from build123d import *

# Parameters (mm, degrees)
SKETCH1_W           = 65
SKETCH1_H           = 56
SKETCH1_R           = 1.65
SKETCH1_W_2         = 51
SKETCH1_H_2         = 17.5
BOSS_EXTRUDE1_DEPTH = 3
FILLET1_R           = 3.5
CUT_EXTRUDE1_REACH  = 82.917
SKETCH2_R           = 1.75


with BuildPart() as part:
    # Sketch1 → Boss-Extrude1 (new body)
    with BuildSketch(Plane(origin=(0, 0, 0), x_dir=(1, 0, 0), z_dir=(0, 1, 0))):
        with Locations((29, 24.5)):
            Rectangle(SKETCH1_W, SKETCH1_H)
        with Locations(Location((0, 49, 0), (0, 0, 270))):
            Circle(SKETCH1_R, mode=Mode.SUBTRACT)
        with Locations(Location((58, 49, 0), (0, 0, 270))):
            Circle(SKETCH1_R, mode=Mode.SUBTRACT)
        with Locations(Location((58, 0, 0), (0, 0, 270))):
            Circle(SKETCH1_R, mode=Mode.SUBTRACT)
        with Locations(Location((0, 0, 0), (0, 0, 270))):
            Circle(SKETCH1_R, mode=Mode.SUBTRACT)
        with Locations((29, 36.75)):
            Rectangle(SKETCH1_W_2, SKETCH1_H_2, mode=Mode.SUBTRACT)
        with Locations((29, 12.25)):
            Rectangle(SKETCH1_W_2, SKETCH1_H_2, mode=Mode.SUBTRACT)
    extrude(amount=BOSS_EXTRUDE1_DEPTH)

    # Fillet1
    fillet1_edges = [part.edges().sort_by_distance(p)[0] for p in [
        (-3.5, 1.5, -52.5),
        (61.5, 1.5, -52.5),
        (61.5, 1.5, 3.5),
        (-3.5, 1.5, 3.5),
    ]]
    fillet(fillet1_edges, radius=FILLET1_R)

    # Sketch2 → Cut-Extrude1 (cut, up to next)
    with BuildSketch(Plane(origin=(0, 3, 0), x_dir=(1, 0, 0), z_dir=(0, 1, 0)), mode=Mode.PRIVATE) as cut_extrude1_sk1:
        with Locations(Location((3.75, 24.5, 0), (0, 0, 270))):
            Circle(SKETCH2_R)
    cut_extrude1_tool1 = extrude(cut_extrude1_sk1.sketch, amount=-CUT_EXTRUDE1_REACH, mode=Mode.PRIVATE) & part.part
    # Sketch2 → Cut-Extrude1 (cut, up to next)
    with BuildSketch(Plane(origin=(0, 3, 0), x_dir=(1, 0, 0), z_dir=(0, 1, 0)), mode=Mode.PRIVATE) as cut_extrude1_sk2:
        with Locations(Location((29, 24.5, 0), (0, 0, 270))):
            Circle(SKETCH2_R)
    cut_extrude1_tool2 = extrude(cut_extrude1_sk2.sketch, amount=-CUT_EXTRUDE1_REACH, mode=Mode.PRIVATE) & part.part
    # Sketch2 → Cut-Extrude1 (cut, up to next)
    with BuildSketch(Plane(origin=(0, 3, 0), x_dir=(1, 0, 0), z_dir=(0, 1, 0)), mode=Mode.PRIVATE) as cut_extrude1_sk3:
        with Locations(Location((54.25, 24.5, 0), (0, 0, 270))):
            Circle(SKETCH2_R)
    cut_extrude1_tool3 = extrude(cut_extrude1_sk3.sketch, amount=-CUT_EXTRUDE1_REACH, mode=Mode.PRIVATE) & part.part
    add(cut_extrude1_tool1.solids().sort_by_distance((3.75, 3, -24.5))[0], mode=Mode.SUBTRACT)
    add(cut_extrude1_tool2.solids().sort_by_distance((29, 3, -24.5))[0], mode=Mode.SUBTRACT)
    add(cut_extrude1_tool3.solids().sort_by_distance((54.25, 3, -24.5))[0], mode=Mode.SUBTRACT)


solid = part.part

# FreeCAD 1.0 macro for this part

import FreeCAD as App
import Part
import Sketcher

V = App.Vector


def edges_at(feature, points):
    """Names of the edges that pass closest to the given points."""
    edges = feature.Shape.Edges
    near = lambda p: min(range(len(edges)), key=lambda i: edges[i].distToShape(Part.Vertex(*p))[0])
    return sorted({f"Edge{near(p) + 1}" for p in points})


def add_polygon(sketch, points):
    """Adds a closed chain of lines whose ends are joined by coincident constraints."""
    first, n = sketch.GeometryCount, len(points)
    for a, b in zip(points, points[1:] + points[:1]):
        sketch.addGeometry(Part.LineSegment(App.Vector(*a, 0), App.Vector(*b, 0)), False)
    for i in range(n):
        sketch.addConstraint(Sketcher.Constraint("Coincident", first + i, 2, first + (i + 1) % n, 1))

doc = App.newDocument("Part")
body = doc.addObject("PartDesign::Body", "Body")

# Sketch on XZ plane
sketch1 = body.newObject("Sketcher::SketchObject", "Sketch")
sketch1.AttachmentSupport = (doc.getObject("XZ_Plane"), [""])
sketch1.MapMode = "FlatFace"
add_polygon(sketch1, [(-3.5, -52.5), (-3.5, 3.5), (61.5, 3.5), (61.5, -52.5)])  # lines 0-3
sketch1.addGeometry(Part.Circle(V(0, 0, 0), V(0, 0, 1), 1.6), False)  # 4
sketch1.addGeometry(Part.Circle(V(58, 0, 0), V(0, 0, 1), 1.6), False)  # 5
add_polygon(sketch1, [(54.5, -3.5), (3.5, -3.5), (3.5, -21), (54.5, -21)])  # lines 6-9
sketch1.addGeometry(Part.Circle(V(0, -49, 0), V(0, 0, 1), 1.6), False)  # 10
add_polygon(sketch1, [(54.5, -28), (3.5, -28), (3.5, -45.5), (54.5, -45.5)])  # lines 11-14
sketch1.addGeometry(Part.Circle(V(58, -49, 0), V(0, 0, 1), 1.6), False)  # 15
sketch1.addConstraint(Sketcher.Constraint("Vertical", 0))
sketch1.addConstraint(Sketcher.Constraint("Horizontal", 1))
sketch1.addConstraint(Sketcher.Constraint("Vertical", 2))
sketch1.addConstraint(Sketcher.Constraint("Horizontal", 3))
sketch1.addConstraint(Sketcher.Constraint("Horizontal", 6))
sketch1.addConstraint(Sketcher.Constraint("Vertical", 7))
sketch1.addConstraint(Sketcher.Constraint("Horizontal", 8))
sketch1.addConstraint(Sketcher.Constraint("Vertical", 9))
sketch1.addConstraint(Sketcher.Constraint("Horizontal", 11))
sketch1.addConstraint(Sketcher.Constraint("Vertical", 12))
sketch1.addConstraint(Sketcher.Constraint("Horizontal", 13))
sketch1.addConstraint(Sketcher.Constraint("Vertical", 14))
sketch1.addConstraint(Sketcher.Constraint("Coincident", 4, 3, -1, 1))
sketch1.addConstraint(Sketcher.Constraint("Equal", 4, 5))
sketch1.addConstraint(Sketcher.Constraint("Equal", 5, 10))
sketch1.addConstraint(Sketcher.Constraint("Equal", 10, 15))
sketch1.addConstraint(Sketcher.Constraint("Symmetric", 0, 2, 6, 2, -1, 1))
sketch1.addConstraint(Sketcher.Constraint("PointOnObject", 5, 3, -1))
sketch1.addConstraint(Sketcher.Constraint("PointOnObject", 10, 3, -2))
sketch1.addConstraint(Sketcher.Constraint("Horizontal", 10, 3, 15, 3))
sketch1.addConstraint(Sketcher.Constraint("Vertical", 5, 3, 15, 3))
sketch1.addConstraint(Sketcher.Constraint("Vertical", 7, 2, 11, 2))
sketch1.addConstraint(Sketcher.Constraint("Vertical", 9, 2, 13, 2))
sketch1.addConstraint(Sketcher.Constraint("Equal", 9, 12))
sketch1.addConstraint(Sketcher.Constraint("Diameter", 4, 3.3))
sketch1.addConstraint(Sketcher.Constraint("DistanceX", 1, 1, 1, 2, 65.0))
sketch1.addConstraint(Sketcher.Constraint("DistanceX", 6, 2, 6, 1, 51.0))
sketch1.addConstraint(Sketcher.Constraint("DistanceY", 0, 1, 0, 2, 56.0))
sketch1.addConstraint(Sketcher.Constraint("DistanceY", 7, 2, 7, 1, 17.5))
sketch1.addConstraint(Sketcher.Constraint("DistanceX", -1, 1, 5, 3, 58.0))
sketch1.addConstraint(Sketcher.Constraint("DistanceY", 10, 3, -1, 1, 49.0))
sketch1.addConstraint(Sketcher.Constraint("DistanceY", 7, 2, -1, 1, 21.0))
sketch1.addConstraint(Sketcher.Constraint("DistanceY", 11, 2, -1, 1, 28.0))
sketch1.addConstraint(Sketcher.Constraint("DistanceX", 0, 2, 6, 2, 7.0))
pad1 = body.newObject("PartDesign::Pad", "Pad")
pad1.Profile = sketch1
pad1.Length = 3
pad1.Reversed = True
doc.recompute()

fillet = body.newObject("PartDesign::Fillet", "Fillet")
fillet.Base = (pad1, edges_at(pad1, [
    (-3.5, 1.5, -52.5),
    (61.5, 1.5, -52.5),
    (61.5, 1.5, 3.5),
    (-3.5, 1.5, 3.5),
]))
fillet.Radius = 3.5

# Sketch on XZ plane
sketch2 = body.newObject("Sketcher::SketchObject", "Sketch001")
sketch2.AttachmentSupport = (doc.getObject("XZ_Plane"), [""])
sketch2.MapMode = "FlatFace"
sketch2.AttachmentOffset = App.Placement(V(0, 0, -3), App.Rotation())
sketch2.addGeometry(Part.Circle(V(3.8, -24.5, 0), V(0, 0, 1), 1.8), False)
sketch2.addConstraint(Sketcher.Constraint("Diameter", 0, 3.5))
sketch2.addConstraint(Sketcher.Constraint("DistanceY", 0, 3, -1, 1, 24.5))
sketch2.addConstraint(Sketcher.Constraint("DistanceX", -1, 1, 0, 3, 3.75))
pocket1 = body.newObject("PartDesign::Pocket", "Pocket")
pocket1.Profile = sketch2
pocket1.Type = "UpToFirst"
pocket1.Reversed = True

# Sketch on XZ plane
sketch3 = body.newObject("Sketcher::SketchObject", "Sketch002")
sketch3.AttachmentSupport = (doc.getObject("XZ_Plane"), [""])
sketch3.MapMode = "FlatFace"
sketch3.AttachmentOffset = App.Placement(V(0, 0, -3), App.Rotation())
sketch3.addGeometry(Part.Circle(V(29, -24.5, 0), V(0, 0, 1), 1.8), False)
sketch3.addConstraint(Sketcher.Constraint("Diameter", 0, 3.5))
sketch3.addConstraint(Sketcher.Constraint("DistanceX", -1, 1, 0, 3, 29.0))
sketch3.addConstraint(Sketcher.Constraint("DistanceY", 0, 3, -1, 1, 24.5))
pocket2 = body.newObject("PartDesign::Pocket", "Pocket001")
pocket2.Profile = sketch3
pocket2.Type = "UpToFirst"
pocket2.Reversed = True

# Sketch on XZ plane
sketch4 = body.newObject("Sketcher::SketchObject", "Sketch003")
sketch4.AttachmentSupport = (doc.getObject("XZ_Plane"), [""])
sketch4.MapMode = "FlatFace"
sketch4.AttachmentOffset = App.Placement(V(0, 0, -3), App.Rotation())
sketch4.addGeometry(Part.Circle(V(54.2, -24.5, 0), V(0, 0, 1), 1.8), False)
sketch4.addConstraint(Sketcher.Constraint("Diameter", 0, 3.5))
sketch4.addConstraint(Sketcher.Constraint("DistanceY", 0, 3, -1, 1, 24.5))
sketch4.addConstraint(Sketcher.Constraint("DistanceX", -1, 1, 0, 3, 54.25))
pocket3 = body.newObject("PartDesign::Pocket", "Pocket002")
pocket3.Profile = sketch4
pocket3.Type = "UpToFirst"
pocket3.Reversed = True

doc.recompute()
